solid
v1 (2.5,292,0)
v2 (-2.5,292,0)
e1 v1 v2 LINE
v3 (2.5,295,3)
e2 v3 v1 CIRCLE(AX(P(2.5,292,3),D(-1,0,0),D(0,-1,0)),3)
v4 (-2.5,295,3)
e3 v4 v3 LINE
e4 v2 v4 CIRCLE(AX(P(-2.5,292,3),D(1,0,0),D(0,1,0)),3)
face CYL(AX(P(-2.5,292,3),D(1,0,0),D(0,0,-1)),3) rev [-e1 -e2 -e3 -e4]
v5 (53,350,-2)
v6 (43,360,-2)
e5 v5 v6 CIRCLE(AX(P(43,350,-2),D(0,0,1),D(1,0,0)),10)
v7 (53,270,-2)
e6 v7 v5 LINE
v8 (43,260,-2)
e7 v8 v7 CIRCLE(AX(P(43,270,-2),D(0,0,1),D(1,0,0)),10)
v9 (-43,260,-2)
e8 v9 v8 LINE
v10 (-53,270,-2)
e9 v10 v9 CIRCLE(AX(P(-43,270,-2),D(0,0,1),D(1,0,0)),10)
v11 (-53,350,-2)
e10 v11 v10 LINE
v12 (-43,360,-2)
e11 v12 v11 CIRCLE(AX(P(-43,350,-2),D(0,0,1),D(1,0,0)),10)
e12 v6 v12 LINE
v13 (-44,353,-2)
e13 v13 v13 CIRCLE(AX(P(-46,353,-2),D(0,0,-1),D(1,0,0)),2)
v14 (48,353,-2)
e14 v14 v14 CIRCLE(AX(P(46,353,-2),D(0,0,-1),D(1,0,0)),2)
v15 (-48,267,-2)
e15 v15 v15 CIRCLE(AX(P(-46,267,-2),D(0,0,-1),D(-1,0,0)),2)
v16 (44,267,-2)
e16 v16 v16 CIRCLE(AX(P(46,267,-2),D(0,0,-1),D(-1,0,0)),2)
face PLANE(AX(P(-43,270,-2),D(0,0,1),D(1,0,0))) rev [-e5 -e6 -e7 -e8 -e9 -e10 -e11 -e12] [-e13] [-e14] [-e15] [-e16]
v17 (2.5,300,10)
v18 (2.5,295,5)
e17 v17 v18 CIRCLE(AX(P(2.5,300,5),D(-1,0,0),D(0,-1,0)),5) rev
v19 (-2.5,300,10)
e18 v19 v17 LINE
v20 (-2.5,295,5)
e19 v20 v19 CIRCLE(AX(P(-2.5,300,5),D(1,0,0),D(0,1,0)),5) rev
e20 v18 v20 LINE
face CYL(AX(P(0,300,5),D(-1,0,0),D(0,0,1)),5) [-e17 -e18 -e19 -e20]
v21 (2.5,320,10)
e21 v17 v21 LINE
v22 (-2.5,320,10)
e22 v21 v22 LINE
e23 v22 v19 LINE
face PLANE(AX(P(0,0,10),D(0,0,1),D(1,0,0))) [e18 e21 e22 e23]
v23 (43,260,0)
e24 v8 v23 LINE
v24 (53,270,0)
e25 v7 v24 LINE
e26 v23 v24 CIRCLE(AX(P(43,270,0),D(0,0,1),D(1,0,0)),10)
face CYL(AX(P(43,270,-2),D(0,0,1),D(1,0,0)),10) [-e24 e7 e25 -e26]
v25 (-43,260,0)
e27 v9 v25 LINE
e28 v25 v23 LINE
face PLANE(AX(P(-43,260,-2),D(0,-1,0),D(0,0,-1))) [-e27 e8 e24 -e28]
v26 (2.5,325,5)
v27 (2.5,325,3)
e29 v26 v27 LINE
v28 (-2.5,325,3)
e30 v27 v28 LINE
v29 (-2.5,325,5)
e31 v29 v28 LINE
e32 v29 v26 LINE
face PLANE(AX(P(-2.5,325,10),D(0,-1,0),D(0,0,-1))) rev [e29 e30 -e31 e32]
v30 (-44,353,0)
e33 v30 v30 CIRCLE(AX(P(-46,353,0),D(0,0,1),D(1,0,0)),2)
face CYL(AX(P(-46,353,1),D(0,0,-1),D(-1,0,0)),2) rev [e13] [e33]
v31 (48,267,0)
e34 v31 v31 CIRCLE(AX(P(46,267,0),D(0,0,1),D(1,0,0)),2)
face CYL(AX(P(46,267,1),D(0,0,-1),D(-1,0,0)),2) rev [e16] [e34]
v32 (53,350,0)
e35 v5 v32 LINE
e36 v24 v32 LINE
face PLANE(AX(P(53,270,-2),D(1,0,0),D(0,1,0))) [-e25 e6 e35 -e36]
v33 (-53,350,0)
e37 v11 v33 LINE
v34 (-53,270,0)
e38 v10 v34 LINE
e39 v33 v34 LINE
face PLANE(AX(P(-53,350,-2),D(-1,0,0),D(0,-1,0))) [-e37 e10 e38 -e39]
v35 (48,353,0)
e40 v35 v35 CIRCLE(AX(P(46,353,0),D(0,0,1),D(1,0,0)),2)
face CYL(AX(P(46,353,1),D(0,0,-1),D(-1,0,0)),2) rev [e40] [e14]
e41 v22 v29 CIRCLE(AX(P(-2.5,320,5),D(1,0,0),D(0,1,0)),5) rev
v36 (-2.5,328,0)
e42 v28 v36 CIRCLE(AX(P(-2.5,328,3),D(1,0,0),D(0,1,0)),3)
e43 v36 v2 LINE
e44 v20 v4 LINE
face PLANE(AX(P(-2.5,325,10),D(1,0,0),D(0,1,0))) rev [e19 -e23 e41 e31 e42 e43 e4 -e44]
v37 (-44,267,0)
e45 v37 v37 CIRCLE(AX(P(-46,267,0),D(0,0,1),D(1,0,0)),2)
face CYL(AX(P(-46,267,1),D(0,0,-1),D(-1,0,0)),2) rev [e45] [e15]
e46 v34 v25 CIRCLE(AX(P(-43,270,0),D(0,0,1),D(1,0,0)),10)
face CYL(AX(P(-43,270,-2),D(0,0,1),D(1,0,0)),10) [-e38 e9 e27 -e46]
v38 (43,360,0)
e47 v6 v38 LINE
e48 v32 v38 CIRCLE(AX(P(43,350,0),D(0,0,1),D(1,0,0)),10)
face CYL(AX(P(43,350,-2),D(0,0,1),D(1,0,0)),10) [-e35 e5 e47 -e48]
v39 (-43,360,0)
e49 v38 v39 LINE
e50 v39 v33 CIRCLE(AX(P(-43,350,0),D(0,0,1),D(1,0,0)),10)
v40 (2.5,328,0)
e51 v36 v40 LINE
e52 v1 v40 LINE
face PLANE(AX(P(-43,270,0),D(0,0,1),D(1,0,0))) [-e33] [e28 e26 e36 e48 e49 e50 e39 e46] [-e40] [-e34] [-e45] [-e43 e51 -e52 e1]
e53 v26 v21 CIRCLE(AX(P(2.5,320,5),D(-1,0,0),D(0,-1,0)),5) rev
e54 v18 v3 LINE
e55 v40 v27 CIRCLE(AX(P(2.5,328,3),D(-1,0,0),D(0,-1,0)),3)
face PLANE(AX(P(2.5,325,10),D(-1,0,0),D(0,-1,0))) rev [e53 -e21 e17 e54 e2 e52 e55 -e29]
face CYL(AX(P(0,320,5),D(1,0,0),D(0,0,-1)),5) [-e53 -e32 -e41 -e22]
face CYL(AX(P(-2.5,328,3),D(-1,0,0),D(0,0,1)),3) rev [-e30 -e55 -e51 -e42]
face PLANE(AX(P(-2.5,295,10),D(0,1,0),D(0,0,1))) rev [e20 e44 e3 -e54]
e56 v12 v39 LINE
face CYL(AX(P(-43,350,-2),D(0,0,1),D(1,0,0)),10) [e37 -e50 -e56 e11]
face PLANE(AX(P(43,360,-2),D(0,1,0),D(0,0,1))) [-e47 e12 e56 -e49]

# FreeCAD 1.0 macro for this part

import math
import FreeCAD as App
import Part
import Sketcher
from FreeCAD import Vector


def edges_at(feature, points):
    """Names of the edges that pass closest to the given points."""
    edges = feature.Shape.Edges
    near = lambda p: min(range(len(edges)), key=lambda i: edges[i].distToShape(Part.Vertex(*p))[0])
    return sorted({f"Edge{near(p) + 1}" for p in points})

doc = App.newDocument("Part")
body = doc.addObject("PartDesign::Body", "Body")

# Sketch on XY plane
sketch1 = body.newObject("Sketcher::SketchObject", "Sketch")
sketch1.AttachmentSupport = (doc.getObject("XY_Plane"), [""])
sketch1.MapMode = "FlatFace"
sketch1.addGeometry([
    Part.LineSegment(Vector(-43, 260, 0), Vector(43, 260, 0)),  # 0
    Part.ArcOfCircle(Part.Circle(Vector(43, 270, 0), Vector(0, 0, 1), 10), math.radians(-90), math.radians(0)),  # 1
    Part.LineSegment(Vector(53, 270, 0), Vector(53, 350, 0)),  # 2
    Part.ArcOfCircle(Part.Circle(Vector(43, 350, 0), Vector(0, 0, 1), 10), math.radians(0), math.radians(90)),  # 3
    Part.LineSegment(Vector(43, 360, 0), Vector(-43, 360, 0)),  # 4
    Part.ArcOfCircle(Part.Circle(Vector(-43, 350, 0), Vector(0, 0, 1), 10), math.radians(90), math.radians(180)),  # 5
    Part.LineSegment(Vector(-53, 350, 0), Vector(-53, 270, 0)),  # 6
    Part.ArcOfCircle(Part.Circle(Vector(-43, 270, 0), Vector(0, 0, 1), 10), math.radians(180), math.radians(270)),  # 7
], False)
sketch1.addConstraint([
    Sketcher.Constraint("Tangent", 0, 2, 1, 1),
    Sketcher.Constraint("Tangent", 1, 2, 2, 1),
    Sketcher.Constraint("Tangent", 2, 2, 3, 1),
    Sketcher.Constraint("Tangent", 3, 2, 4, 1),
    Sketcher.Constraint("Tangent", 4, 2, 5, 1),
    Sketcher.Constraint("Tangent", 5, 2, 6, 1),
    Sketcher.Constraint("Tangent", 6, 2, 7, 1),
    Sketcher.Constraint("Tangent", 7, 2, 0, 1),
    Sketcher.Constraint("Horizontal", 0),
    Sketcher.Constraint("Vertical", 2),
    Sketcher.Constraint("Horizontal", 4),
    Sketcher.Constraint("Vertical", 6),
    Sketcher.Constraint("Equal", 1, 3),
    Sketcher.Constraint("Equal", 3, 5),
    Sketcher.Constraint("Equal", 5, 7),
    Sketcher.Constraint("Radius", 1, 10.0),
    Sketcher.Constraint("DistanceX", 0, 1, 0, 2, 86.0),
    Sketcher.Constraint("DistanceY", 2, 1, 2, 2, 80.0),
    Sketcher.Constraint("DistanceX", -1, 1, 1, 3, 43.0),
    Sketcher.Constraint("DistanceY", -1, 1, 1, 3, 270.0),
])
pad1 = body.newObject("PartDesign::Pad", "Pad")
pad1.Profile = sketch1
pad1.Length = 2
pad1.Reversed = True

# Sketch on XY plane
sketch2 = body.newObject("Sketcher::SketchObject", "Sketch001")
sketch2.AttachmentSupport = (doc.getObject("XY_Plane"), [""])
sketch2.MapMode = "FlatFace"
sketch2.AttachmentOffset = App.Placement(Vector(0, 0, -2), App.Rotation())
sketch2.addGeometry([
    Part.Circle(Vector(-46, 267, 0), Vector(0, 0, 1), 2),
    Part.Circle(Vector(46, 267, 0), Vector(0, 0, 1), 2),
    Part.Circle(Vector(46, 353, 0), Vector(0, 0, 1), 2),
    Part.Circle(Vector(-46, 353, 0), Vector(0, 0, 1), 2),
], False)
sketch2.addConstraint([
    Sketcher.Constraint("Equal", 0, 1),
    Sketcher.Constraint("Equal", 1, 2),
    Sketcher.Constraint("Equal", 2, 3),
    Sketcher.Constraint("Symmetric", 0, 3, 1, 3, -2),
    Sketcher.Constraint("Symmetric", 2, 3, 3, 3, -2),
    Sketcher.Constraint("Vertical", 1, 3, 2, 3),
    Sketcher.Constraint("Diameter", 0, 4.0),
    Sketcher.Constraint("DistanceX", 0, 3, -1, 1, 46.0),
    Sketcher.Constraint("DistanceY", -1, 1, 0, 3, 267.0),
    Sketcher.Constraint("DistanceY", -1, 1, 2, 3, 353.0),
])
pocket1 = body.newObject("PartDesign::Pocket", "Pocket")
pocket1.Profile = sketch2
pocket1.Length = 3
pocket1.Reversed = True

# Sketch on XY plane
sketch3 = body.newObject("Sketcher::SketchObject", "Sketch002")
sketch3.AttachmentSupport = (doc.getObject("XY_Plane"), [""])
sketch3.MapMode = "FlatFace"
sketch3.addGeometry([
    Part.LineSegment(Vector(-2.5, 325, 0), Vector(-2.5, 295, 0)),
    Part.LineSegment(Vector(-2.5, 295, 0), Vector(2.5, 295, 0)),
    Part.LineSegment(Vector(2.5, 295, 0), Vector(2.5, 325, 0)),
    Part.LineSegment(Vector(2.5, 325, 0), Vector(-2.5, 325, 0)),
], False)
sketch3.addConstraint([
    Sketcher.Constraint("Coincident", 0, 2, 1, 1),
    Sketcher.Constraint("Coincident", 1, 2, 2, 1),
    Sketcher.Constraint("Coincident", 2, 2, 3, 1),
    Sketcher.Constraint("Coincident", 3, 2, 0, 1),
    Sketcher.Constraint("Vertical", 0),
    Sketcher.Constraint("Horizontal", 1),
    Sketcher.Constraint("Vertical", 2),
    Sketcher.Constraint("Horizontal", 3),
    Sketcher.Constraint("DistanceX", 1, 1, 1, 2, 5.0),
    Sketcher.Constraint("DistanceY", 0, 2, 0, 1, 30.0),
    Sketcher.Constraint("DistanceY", -1, 1, 0, 2, 295.0),
    Sketcher.Constraint("DistanceX", 0, 2, -1, 1, 2.5),
])
pad2 = body.newObject("PartDesign::Pad", "Pad001")
pad2.Profile = sketch3
pad2.Length = 10
doc.recompute()

fillet = body.newObject("PartDesign::Fillet", "Fillet")
fillet.Base = (pad2, edges_at(pad2, [(0, 295, 10), (0, 325, 10)]))
fillet.Radius = 5
doc.recompute()

fillet2 = body.newObject("PartDesign::Fillet", "Fillet001")
fillet2.Base = (fillet, edges_at(fillet, [(0, 295, 0), (0, 325, 0)]))
fillet2.Radius = 3

doc.recompute()
